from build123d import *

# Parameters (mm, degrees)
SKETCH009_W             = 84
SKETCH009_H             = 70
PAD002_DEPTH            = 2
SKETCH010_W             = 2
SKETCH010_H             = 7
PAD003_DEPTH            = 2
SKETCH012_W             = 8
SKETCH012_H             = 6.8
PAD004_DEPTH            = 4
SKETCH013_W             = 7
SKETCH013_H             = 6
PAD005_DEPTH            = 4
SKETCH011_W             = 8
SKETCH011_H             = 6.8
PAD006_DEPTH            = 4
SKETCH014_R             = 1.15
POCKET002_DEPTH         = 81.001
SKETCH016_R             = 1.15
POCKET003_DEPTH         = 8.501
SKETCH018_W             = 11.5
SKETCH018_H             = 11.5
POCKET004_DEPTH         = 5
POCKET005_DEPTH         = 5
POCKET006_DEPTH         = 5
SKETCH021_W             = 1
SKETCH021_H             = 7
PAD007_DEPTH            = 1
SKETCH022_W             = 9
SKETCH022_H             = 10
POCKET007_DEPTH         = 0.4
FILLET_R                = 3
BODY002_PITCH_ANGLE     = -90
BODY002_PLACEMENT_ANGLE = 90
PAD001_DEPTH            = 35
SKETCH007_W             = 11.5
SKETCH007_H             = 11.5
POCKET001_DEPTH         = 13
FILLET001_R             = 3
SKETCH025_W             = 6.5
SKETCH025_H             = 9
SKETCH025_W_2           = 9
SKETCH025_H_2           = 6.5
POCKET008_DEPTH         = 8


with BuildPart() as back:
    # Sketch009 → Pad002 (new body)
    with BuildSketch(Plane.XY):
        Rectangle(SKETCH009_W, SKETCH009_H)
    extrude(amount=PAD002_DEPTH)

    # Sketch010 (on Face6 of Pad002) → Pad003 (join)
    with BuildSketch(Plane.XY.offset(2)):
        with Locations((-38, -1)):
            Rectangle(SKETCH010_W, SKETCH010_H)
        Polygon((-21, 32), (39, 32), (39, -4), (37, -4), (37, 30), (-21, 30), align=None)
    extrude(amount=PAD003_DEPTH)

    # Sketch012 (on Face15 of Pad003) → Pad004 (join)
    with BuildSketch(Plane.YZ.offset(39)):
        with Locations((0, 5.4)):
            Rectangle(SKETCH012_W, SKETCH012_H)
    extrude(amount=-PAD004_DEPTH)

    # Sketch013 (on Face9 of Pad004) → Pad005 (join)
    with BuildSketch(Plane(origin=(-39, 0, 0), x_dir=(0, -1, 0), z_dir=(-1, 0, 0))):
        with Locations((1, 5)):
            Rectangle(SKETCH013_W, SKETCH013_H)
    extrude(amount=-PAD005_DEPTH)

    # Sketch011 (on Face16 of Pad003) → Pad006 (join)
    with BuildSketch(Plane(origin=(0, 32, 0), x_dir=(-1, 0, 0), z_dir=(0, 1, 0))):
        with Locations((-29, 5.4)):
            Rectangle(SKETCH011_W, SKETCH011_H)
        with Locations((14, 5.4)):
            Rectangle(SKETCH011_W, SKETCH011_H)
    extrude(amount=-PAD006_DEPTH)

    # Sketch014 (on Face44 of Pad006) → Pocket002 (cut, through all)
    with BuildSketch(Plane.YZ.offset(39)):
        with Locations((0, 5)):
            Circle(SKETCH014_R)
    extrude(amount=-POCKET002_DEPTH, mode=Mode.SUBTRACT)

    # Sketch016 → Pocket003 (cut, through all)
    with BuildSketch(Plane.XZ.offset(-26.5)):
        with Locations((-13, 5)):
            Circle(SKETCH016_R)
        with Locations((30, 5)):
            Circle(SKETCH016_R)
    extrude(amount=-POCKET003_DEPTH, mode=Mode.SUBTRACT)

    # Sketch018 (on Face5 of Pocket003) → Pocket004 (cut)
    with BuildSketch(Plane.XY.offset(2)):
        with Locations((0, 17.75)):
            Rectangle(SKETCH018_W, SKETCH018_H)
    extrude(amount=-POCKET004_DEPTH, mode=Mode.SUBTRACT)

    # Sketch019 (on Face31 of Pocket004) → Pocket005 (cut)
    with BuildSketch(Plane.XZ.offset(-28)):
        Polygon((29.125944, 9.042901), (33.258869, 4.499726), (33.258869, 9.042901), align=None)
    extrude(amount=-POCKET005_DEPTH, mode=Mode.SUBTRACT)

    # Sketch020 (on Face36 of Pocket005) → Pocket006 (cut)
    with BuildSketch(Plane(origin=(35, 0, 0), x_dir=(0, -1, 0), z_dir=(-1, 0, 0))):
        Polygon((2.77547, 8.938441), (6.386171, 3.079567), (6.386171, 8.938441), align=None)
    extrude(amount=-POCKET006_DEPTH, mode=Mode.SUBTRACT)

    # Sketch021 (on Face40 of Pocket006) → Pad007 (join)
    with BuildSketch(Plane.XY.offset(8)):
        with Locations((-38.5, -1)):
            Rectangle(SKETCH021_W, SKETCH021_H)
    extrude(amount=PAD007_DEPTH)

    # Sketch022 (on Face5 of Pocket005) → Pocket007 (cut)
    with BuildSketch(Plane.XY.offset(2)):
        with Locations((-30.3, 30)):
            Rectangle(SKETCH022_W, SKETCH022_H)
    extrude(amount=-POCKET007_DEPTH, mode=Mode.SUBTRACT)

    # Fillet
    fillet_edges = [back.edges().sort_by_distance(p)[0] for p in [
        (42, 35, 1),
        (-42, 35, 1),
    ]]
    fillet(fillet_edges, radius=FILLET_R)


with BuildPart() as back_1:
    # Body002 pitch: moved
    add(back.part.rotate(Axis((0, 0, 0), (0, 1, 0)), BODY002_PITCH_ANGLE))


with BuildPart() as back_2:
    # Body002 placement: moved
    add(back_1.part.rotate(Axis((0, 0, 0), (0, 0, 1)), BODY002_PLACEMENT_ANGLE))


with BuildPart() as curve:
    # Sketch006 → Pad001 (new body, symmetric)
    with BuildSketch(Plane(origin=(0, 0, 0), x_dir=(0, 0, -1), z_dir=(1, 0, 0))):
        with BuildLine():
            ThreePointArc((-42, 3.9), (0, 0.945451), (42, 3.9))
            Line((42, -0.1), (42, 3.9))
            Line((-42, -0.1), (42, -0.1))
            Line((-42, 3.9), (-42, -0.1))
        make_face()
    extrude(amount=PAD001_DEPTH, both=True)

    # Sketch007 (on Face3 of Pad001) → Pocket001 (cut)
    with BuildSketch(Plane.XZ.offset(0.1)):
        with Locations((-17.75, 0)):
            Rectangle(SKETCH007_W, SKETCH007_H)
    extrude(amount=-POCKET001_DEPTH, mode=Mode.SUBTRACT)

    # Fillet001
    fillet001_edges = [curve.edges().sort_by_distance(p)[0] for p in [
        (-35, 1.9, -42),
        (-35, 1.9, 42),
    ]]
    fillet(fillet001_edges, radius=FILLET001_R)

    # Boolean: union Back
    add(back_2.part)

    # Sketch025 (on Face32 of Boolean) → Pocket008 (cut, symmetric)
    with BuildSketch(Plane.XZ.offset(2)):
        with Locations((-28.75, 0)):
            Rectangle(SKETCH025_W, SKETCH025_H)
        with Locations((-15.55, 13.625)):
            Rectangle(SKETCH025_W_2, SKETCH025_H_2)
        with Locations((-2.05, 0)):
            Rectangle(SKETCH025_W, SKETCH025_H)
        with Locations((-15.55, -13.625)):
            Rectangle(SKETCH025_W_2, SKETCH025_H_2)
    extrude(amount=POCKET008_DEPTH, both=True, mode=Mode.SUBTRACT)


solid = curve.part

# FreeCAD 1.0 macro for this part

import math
import FreeCAD as App
import Part
import Sketcher

V = App.Vector


def edges_at(feature, points):
    """Names of the edges that pass closest to the given points."""
    edges = feature.Shape.Edges
    near = lambda p: min(range(len(edges)), key=lambda i: edges[i].distToShape(Part.Vertex(*p))[0])
    return sorted({f"Edge{near(p) + 1}" for p in points})


def add_polygon(sketch, points):
    """Adds a closed chain of lines whose ends are joined by coincident constraints."""
    first, n = sketch.GeometryCount, len(points)
    for a, b in zip(points, points[1:] + points[:1]):
        sketch.addGeometry(Part.LineSegment(App.Vector(*a, 0), App.Vector(*b, 0)), False)
    for i in range(n):
        sketch.addConstraint(Sketcher.Constraint("Coincident", first + i, 2, first + (i + 1) % n, 1))

doc = App.newDocument("Part")
body = doc.addObject("PartDesign::Body", "Body")

# Sketch on XY plane
sketch1 = body.newObject("Sketcher::SketchObject", "Sketch")
sketch1.AttachmentSupport = (doc.getObject("XY_Plane"), [""])
sketch1.MapMode = "FlatFace"
add_polygon(sketch1, [(-42, 35), (-42, -35), (42, -35), (42, 35)])  # lines 0-3
sketch1.addConstraint([
    Sketcher.Constraint("Vertical", 0),
    Sketcher.Constraint("Horizontal", 1),
    Sketcher.Constraint("Vertical", 2),
    Sketcher.Constraint("Horizontal", 3),
    Sketcher.Constraint("Symmetric", 0, 2, 2, 2, -1, 1),
    Sketcher.Constraint("DistanceX", 1, 1, 1, 2, 84.0),
    Sketcher.Constraint("DistanceY", 0, 2, 0, 1, 70.0),
])
pad1 = body.newObject("PartDesign::Pad", "Pad")
pad1.Profile = sketch1
pad1.Length = 2

# Sketch on XY plane
sketch2 = body.newObject("Sketcher::SketchObject", "Sketch001")
sketch2.AttachmentSupport = (doc.getObject("XY_Plane"), [""])
sketch2.MapMode = "FlatFace"
sketch2.AttachmentOffset = App.Placement(V(0, 0, 2), App.Rotation())
add_polygon(sketch2, [(-39, 2.5), (-39, -4.5), (-37, -4.5), (-37, 2.5)])  # lines 0-3
add_polygon(sketch2, [(39, 32), (-21, 32), (-21, 30), (37, 30), (37, -4), (39, -4)])  # lines 4-9
sketch2.addConstraint([
    Sketcher.Constraint("Vertical", 0),
    Sketcher.Constraint("Horizontal", 1),
    Sketcher.Constraint("Vertical", 2),
    Sketcher.Constraint("Horizontal", 3),
    Sketcher.Constraint("Horizontal", 4),
    Sketcher.Constraint("Vertical", 5),
    Sketcher.Constraint("Horizontal", 6),
    Sketcher.Constraint("Vertical", 7),
    Sketcher.Constraint("Horizontal", 8),
    Sketcher.Constraint("Vertical", 9),
    Sketcher.Constraint("Equal", 3, 8),
    Sketcher.Constraint("Equal", 8, 5),
    Sketcher.Constraint("DistanceX", 1, 1, 1, 2, 2.0),
    Sketcher.Constraint("DistanceX", 4, 2, 4, 1, 60.0),
    Sketcher.Constraint("DistanceY", 0, 2, 0, 1, 7.0),
    Sketcher.Constraint("DistanceY", 7, 2, 7, 1, 34.0),
    Sketcher.Constraint("DistanceX", 0, 2, -1, 1, 39.0),
    Sketcher.Constraint("DistanceX", 4, 2, -1, 1, 21.0),
    Sketcher.Constraint("DistanceY", -1, 1, 4, 2, 32.0),
    Sketcher.Constraint("DistanceY", 0, 2, -1, 1, 4.5),
])
pad2 = body.newObject("PartDesign::Pad", "Pad001")
pad2.Profile = sketch2
pad2.Length = 2

# Sketch on YZ plane
sketch3 = body.newObject("Sketcher::SketchObject", "Sketch002")
sketch3.AttachmentSupport = (doc.getObject("YZ_Plane"), [""])
sketch3.MapMode = "FlatFace"
sketch3.AttachmentOffset = App.Placement(V(0, 0, 39), App.Rotation())
add_polygon(sketch3, [(-4, 8.8), (-4, 2), (4, 2), (4, 8.8)])  # lines 0-3
sketch3.addConstraint([
    Sketcher.Constraint("Vertical", 0),
    Sketcher.Constraint("Horizontal", 1),
    Sketcher.Constraint("Vertical", 2),
    Sketcher.Constraint("Horizontal", 3),
    Sketcher.Constraint("DistanceX", 1, 1, 1, 2, 8.0),
    Sketcher.Constraint("DistanceY", 0, 2, 0, 1, 6.8),
    Sketcher.Constraint("DistanceX", 0, 2, -1, 1, 4.0),
    Sketcher.Constraint("DistanceY", -1, 1, 0, 2, 2.0),
])
pad3 = body.newObject("PartDesign::Pad", "Pad002")
pad3.Profile = sketch3
pad3.Length = 4
pad3.Reversed = True

# Sketch on YZ plane
sketch4 = body.newObject("Sketcher::SketchObject", "Sketch003")
sketch4.AttachmentSupport = (doc.getObject("YZ_Plane"), [""])
sketch4.MapMode = "FlatFace"
sketch4.AttachmentOffset = App.Placement(V(0, 0, -39), App.Rotation())
add_polygon(sketch4, [(2.5, 8), (2.5, 2), (-4.5, 2), (-4.5, 8)])  # lines 0-3
sketch4.addConstraint([
    Sketcher.Constraint("Vertical", 0),
    Sketcher.Constraint("Horizontal", 1),
    Sketcher.Constraint("Vertical", 2),
    Sketcher.Constraint("Horizontal", 3),
    Sketcher.Constraint("DistanceX", 1, 2, 1, 1, 7.0),
    Sketcher.Constraint("DistanceY", 0, 2, 0, 1, 6.0),
    Sketcher.Constraint("DistanceY", -1, 1, 0, 2, 2.0),
    Sketcher.Constraint("DistanceX", -1, 1, 0, 2, 2.5),
])
pad4 = body.newObject("PartDesign::Pad", "Pad003")
pad4.Profile = sketch4
pad4.Length = 4

# Sketch on XZ plane
sketch5 = body.newObject("Sketcher::SketchObject", "Sketch004")
sketch5.AttachmentSupport = (doc.getObject("XZ_Plane"), [""])
sketch5.MapMode = "FlatFace"
sketch5.AttachmentOffset = App.Placement(V(0, 0, -32), App.Rotation())
add_polygon(sketch5, [(33, 8.8), (33, 2), (25, 2), (25, 8.8)])  # lines 0-3
add_polygon(sketch5, [(-10, 8.8), (-10, 2), (-18, 2), (-18, 8.8)])  # lines 4-7
sketch5.addConstraint([
    Sketcher.Constraint("Vertical", 0),
    Sketcher.Constraint("Horizontal", 1),
    Sketcher.Constraint("Vertical", 2),
    Sketcher.Constraint("Horizontal", 3),
    Sketcher.Constraint("Vertical", 4),
    Sketcher.Constraint("Horizontal", 5),
    Sketcher.Constraint("Vertical", 6),
    Sketcher.Constraint("Horizontal", 7),
    Sketcher.Constraint("Horizontal", 1, 2, 4, 2),
    Sketcher.Constraint("Horizontal", 3, 2, 6, 2),
    Sketcher.Constraint("Equal", 3, 5),
    Sketcher.Constraint("DistanceX", 1, 2, 1, 1, 8.0),
    Sketcher.Constraint("DistanceY", 0, 2, 0, 1, 6.8),
    Sketcher.Constraint("DistanceX", -1, 1, 0, 2, 33.0),
    Sketcher.Constraint("DistanceY", -1, 1, 0, 2, 2.0),
    Sketcher.Constraint("DistanceX", 4, 2, -1, 1, 10.0),
])
pad5 = body.newObject("PartDesign::Pad", "Pad004")
pad5.Profile = sketch5
pad5.Length = 4

# Sketch on YZ plane
sketch6 = body.newObject("Sketcher::SketchObject", "Sketch005")
sketch6.AttachmentSupport = (doc.getObject("YZ_Plane"), [""])
sketch6.MapMode = "FlatFace"
sketch6.AttachmentOffset = App.Placement(V(0, 0, 39), App.Rotation())
sketch6.addGeometry(Part.Circle(V(0, 5, 0), V(0, 0, 1), 1.15), False)
sketch6.addConstraint([
    Sketcher.Constraint("PointOnObject", 0, 3, -2),
    Sketcher.Constraint("Diameter", 0, 2.3),
    Sketcher.Constraint("DistanceY", -1, 1, 0, 3, 5.0),
])
pocket1 = body.newObject("PartDesign::Pocket", "Pocket")
pocket1.Profile = sketch6
pocket1.Type = "ThroughAll"

# Sketch on XZ plane
sketch7 = body.newObject("Sketcher::SketchObject", "Sketch006")
sketch7.AttachmentSupport = (doc.getObject("XZ_Plane"), [""])
sketch7.MapMode = "FlatFace"
sketch7.AttachmentOffset = App.Placement(V(0, 0, -26.5), App.Rotation())
sketch7.addGeometry([
    Part.Circle(V(-13, 5, 0), V(0, 0, 1), 1.15),
    Part.Circle(V(30, 5, 0), V(0, 0, 1), 1.15),
], False)
sketch7.addConstraint([
    Sketcher.Constraint("Equal", 0, 1),
    Sketcher.Constraint("Horizontal", 0, 3, 1, 3),
    Sketcher.Constraint("Diameter", 0, 2.3),
    Sketcher.Constraint("DistanceX", 0, 3, -1, 1, 13.0),
    Sketcher.Constraint("DistanceY", -1, 1, 0, 3, 5.0),
    Sketcher.Constraint("DistanceX", -1, 1, 1, 3, 30.0),
])
pocket2 = body.newObject("PartDesign::Pocket", "Pocket001")
pocket2.Profile = sketch7
pocket2.Type = "ThroughAll"

# Sketch on XY plane
sketch8 = body.newObject("Sketcher::SketchObject", "Sketch007")
sketch8.AttachmentSupport = (doc.getObject("XY_Plane"), [""])
sketch8.MapMode = "FlatFace"
sketch8.AttachmentOffset = App.Placement(V(0, 0, 2), App.Rotation())
add_polygon(sketch8, [(-5.75, 23.5), (-5.75, 12), (5.75, 12), (5.75, 23.5)])  # lines 0-3
sketch8.addConstraint([
    Sketcher.Constraint("Vertical", 0),
    Sketcher.Constraint("Horizontal", 1),
    Sketcher.Constraint("Vertical", 2),
    Sketcher.Constraint("Horizontal", 3),
    Sketcher.Constraint("Equal", 3, 0),
    Sketcher.Constraint("DistanceX", 1, 1, 1, 2, 11.5),
    Sketcher.Constraint("DistanceY", -1, 1, 0, 2, 12.0),
    Sketcher.Constraint("DistanceX", 0, 2, -1, 1, 5.75),
])
pocket3 = body.newObject("PartDesign::Pocket", "Pocket002")
pocket3.Profile = sketch8
pocket3.Length = 5

# Sketch on XZ plane
sketch9 = body.newObject("Sketcher::SketchObject", "Sketch008")
sketch9.AttachmentSupport = (doc.getObject("XZ_Plane"), [""])
sketch9.MapMode = "FlatFace"
sketch9.AttachmentOffset = App.Placement(V(0, 0, -28), App.Rotation())
add_polygon(sketch9, [(29.125944, 9.042901), (33.258869, 4.499726), (33.258869, 9.042901)])  # lines 0-2
sketch9.addConstraint([
    Sketcher.Constraint("Vertical", 1),
    Sketcher.Constraint("Horizontal", 2),
    Sketcher.Constraint("DistanceY", -1, 1, 1, 2, 9.042901),
    Sketcher.Constraint("DistanceX", 2, 2, 2, 1, 4.132925),
    Sketcher.Constraint("DistanceY", 1, 1, 1, 2, 4.543175),
    Sketcher.Constraint("DistanceX", -1, 1, 0, 2, 33.258869),
])
pocket4 = body.newObject("PartDesign::Pocket", "Pocket003")
pocket4.Profile = sketch9
pocket4.Length = 5

# Sketch on YZ plane
sketch10 = body.newObject("Sketcher::SketchObject", "Sketch009")
sketch10.AttachmentSupport = (doc.getObject("YZ_Plane"), [""])
sketch10.MapMode = "FlatFace"
sketch10.AttachmentOffset = App.Placement(V(0, 0, 35), App.Rotation())
add_polygon(sketch10, [(-2.77547, 8.938441), (-6.386171, 3.079567), (-6.386171, 8.938441)])  # lines 0-2
sketch10.addConstraint([
    Sketcher.Constraint("Vertical", 1),
    Sketcher.Constraint("Horizontal", 2),
    Sketcher.Constraint("DistanceX", 2, 1, 2, 2, 3.610701),
    Sketcher.Constraint("Distance", 0, 6.882119),
    Sketcher.Constraint("DistanceX", 0, 2, -1, 1, 6.386171),
    Sketcher.Constraint("DistanceY", -1, 1, 1, 2, 8.938441),
])
pocket5 = body.newObject("PartDesign::Pocket", "Pocket004")
pocket5.Profile = sketch10
pocket5.Length = 5
pocket5.Reversed = True

# Sketch on XY plane
sketch11 = body.newObject("Sketcher::SketchObject", "Sketch010")
sketch11.AttachmentSupport = (doc.getObject("XY_Plane"), [""])
sketch11.MapMode = "FlatFace"
sketch11.AttachmentOffset = App.Placement(V(0, 0, 8), App.Rotation())
add_polygon(sketch11, [(-39, 2.5), (-39, -4.5), (-38, -4.5), (-38, 2.5)])  # lines 0-3
sketch11.addConstraint([
    Sketcher.Constraint("Vertical", 0),
    Sketcher.Constraint("Horizontal", 1),
    Sketcher.Constraint("Vertical", 2),
    Sketcher.Constraint("Horizontal", 3),
    Sketcher.Constraint("DistanceX", 1, 1, 1, 2, 1.0),
    Sketcher.Constraint("DistanceY", 0, 2, 0, 1, 7.0),
    Sketcher.Constraint("DistanceX", 0, 2, -1, 1, 39.0),
    Sketcher.Constraint("DistanceY", 0, 2, -1, 1, 4.5),
])
pad6 = body.newObject("PartDesign::Pad", "Pad005")
pad6.Profile = sketch11
pad6.Length = 1

# Sketch on XY plane
sketch12 = body.newObject("Sketcher::SketchObject", "Sketch011")
sketch12.AttachmentSupport = (doc.getObject("XY_Plane"), [""])
sketch12.MapMode = "FlatFace"
sketch12.AttachmentOffset = App.Placement(V(0, 0, 2), App.Rotation())
add_polygon(sketch12, [(-34.8, 35), (-34.8, 25), (-25.8, 25), (-25.8, 35)])  # lines 0-3
sketch12.addConstraint([
    Sketcher.Constraint("Vertical", 0),
    Sketcher.Constraint("Horizontal", 1),
    Sketcher.Constraint("Vertical", 2),
    Sketcher.Constraint("Horizontal", 3),
    Sketcher.Constraint("DistanceX", 1, 1, 1, 2, 9.0),
    Sketcher.Constraint("DistanceY", 0, 2, 0, 1, 10.0),
    Sketcher.Constraint("DistanceY", -1, 1, 0, 2, 25.0),
    Sketcher.Constraint("DistanceX", 0, 2, -1, 1, 34.8),
])
pocket6 = body.newObject("PartDesign::Pocket", "Pocket005")
pocket6.Profile = sketch12
pocket6.Length = 0.4
doc.recompute()

fillet = body.newObject("PartDesign::Fillet", "Fillet")
fillet.Base = (pocket6, edges_at(pocket6, [(42, 35, 1), (-42, 35, 1)]))
fillet.Radius = 3
body2 = doc.addObject("PartDesign::Body", "Body001")
doc.recompute()

body.Placement = App.Placement(V(0, 0, 0), App.Rotation(V(0, 1, 0), 270))
boolean = body2.newObject("PartDesign::Boolean", "Boolean")
boolean.Type = "Fuse"
boolean.addObjects([body])
body3 = doc.addObject("PartDesign::Body", "Body002")
doc.recompute()

body2.Placement = App.Placement(V(0, 0, 0), App.Rotation(V(0, 0, 1), 90))
boolean2 = body3.newObject("PartDesign::Boolean", "Boolean001")
boolean2.Type = "Fuse"
boolean2.addObjects([body2])
body4 = doc.addObject("PartDesign::Body", "Body003")

# Sketch on YZ plane
sketch13 = body4.newObject("Sketcher::SketchObject", "Sketch012")
sketch13.AttachmentSupport = (doc.getObject("YZ_Plane003"), [""])
sketch13.MapMode = "FlatFace"
sketch13.addGeometry([
    Part.ArcOfCircle(Part.Circle(V(300.945444, 0, 0), V(0, 0, 1), 299.999993), math.radians(171.952154), math.radians(188.047846)),
    Part.LineSegment(V(3.9, 42, 0), V(-0.1, 42, 0)),
    Part.LineSegment(V(-0.1, 42, 0), V(-0.1, -42, 0)),
    Part.LineSegment(V(-0.1, -42, 0), V(3.9, -42, 0)),
], False)
sketch13.addConstraint([
    Sketcher.Constraint("Coincident", 0, 1, 1, 1),
    Sketcher.Constraint("Coincident", 1, 2, 2, 1),
    Sketcher.Constraint("Coincident", 2, 2, 3, 1),
    Sketcher.Constraint("Coincident", 3, 2, 0, 2),
    Sketcher.Constraint("Horizontal", 1),
    Sketcher.Constraint("Vertical", 2),
    Sketcher.Constraint("Horizontal", 3),
    Sketcher.Constraint("Symmetric", 0, 1, 3, 2, -1),
    Sketcher.Constraint("DistanceX", 1, 2, 1, 1, 4.0),
    Sketcher.Constraint("DistanceY", 2, 2, 2, 1, 84.0),
    Sketcher.Constraint("DistanceX", -1, 1, 0, 1, 3.9),
    Sketcher.Constraint("Radius", 0, 299.999993),
])
pad7 = body4.newObject("PartDesign::Pad", "Pad006")
pad7.Profile = sketch13
pad7.Length = 70
pad7.Midplane = True

# Sketch on XZ plane
sketch14 = body4.newObject("Sketcher::SketchObject", "Sketch013")
sketch14.AttachmentSupport = (doc.getObject("XZ_Plane003"), [""])
sketch14.MapMode = "FlatFace"
sketch14.AttachmentOffset = App.Placement(V(0, 0, 0.1), App.Rotation())
add_polygon(sketch14, [(-23.5, 5.75), (-23.5, -5.75), (-12, -5.75), (-12, 5.75)])  # lines 0-3
sketch14.addConstraint([
    Sketcher.Constraint("Vertical", 0),
    Sketcher.Constraint("Horizontal", 1),
    Sketcher.Constraint("Vertical", 2),
    Sketcher.Constraint("Horizontal", 3),
    Sketcher.Constraint("Equal", 3, 0),
    Sketcher.Constraint("DistanceX", 1, 1, 1, 2, 11.5),
    Sketcher.Constraint("DistanceX", 1, 2, -1, 1, 12.0),
    Sketcher.Constraint("DistanceY", 0, 2, -1, 1, 5.75),
])
pocket7 = body4.newObject("PartDesign::Pocket", "Pocket006")
pocket7.Profile = sketch14
pocket7.Length = 13
doc.recompute()

fillet2 = body4.newObject("PartDesign::Fillet", "Fillet001")
fillet2.Base = (pocket7, edges_at(pocket7, [(-35, 1.9, -42), (-35, 1.9, 42)]))
fillet2.Radius = 3
doc.recompute()

boolean3 = body4.newObject("PartDesign::Boolean", "Boolean002")
boolean3.Type = "Fuse"
boolean3.addObjects([body3])

# Sketch on XZ plane
sketch15 = body4.newObject("Sketcher::SketchObject", "Sketch014")
sketch15.AttachmentSupport = (doc.getObject("XZ_Plane003"), [""])
sketch15.MapMode = "FlatFace"
sketch15.AttachmentOffset = App.Placement(V(0, 0, 2), App.Rotation())
add_polygon(sketch15, [(-32, 4.5), (-32, -4.5), (-25.5, -4.5), (-25.5, 4.5)])  # lines 0-3
add_polygon(sketch15, [(-20.05, 16.875), (-20.05, 10.375), (-11.05, 10.375), (-11.05, 16.875)])  # lines 4-7
add_polygon(sketch15, [(-5.3, 4.5), (-5.3, -4.5), (1.2, -4.5), (1.2, 4.5)])  # lines 8-11
add_polygon(sketch15, [(-20.05, -10.375), (-20.05, -16.875), (-11.05, -16.875), (-11.05, -10.375)])  # lines 12-15
sketch15.addConstraint([
    Sketcher.Constraint("Vertical", 0),
    Sketcher.Constraint("Horizontal", 1),
    Sketcher.Constraint("Vertical", 2),
    Sketcher.Constraint("Horizontal", 3),
    Sketcher.Constraint("Vertical", 4),
    Sketcher.Constraint("Horizontal", 5),
    Sketcher.Constraint("Vertical", 6),
    Sketcher.Constraint("Horizontal", 7),
    Sketcher.Constraint("Vertical", 8),
    Sketcher.Constraint("Horizontal", 9),
    Sketcher.Constraint("Vertical", 10),
    Sketcher.Constraint("Horizontal", 11),
    Sketcher.Constraint("Vertical", 12),
    Sketcher.Constraint("Horizontal", 13),
    Sketcher.Constraint("Vertical", 14),
    Sketcher.Constraint("Horizontal", 15),
    Sketcher.Constraint("Symmetric", 7, 2, 12, 2, -1),
    Sketcher.Constraint("Symmetric", 5, 2, 14, 2, -1),
    Sketcher.Constraint("Horizontal", 1, 2, 8, 2),
    Sketcher.Constraint("Horizontal", 3, 2, 10, 2),
    Sketcher.Constraint("Equal", 3, 9),
    Sketcher.Constraint("Equal", 15, 0),
    Sketcher.Constraint("Equal", 11, 4),
    Sketcher.Constraint("DistanceX", 5, 1, 5, 2, 9.0),
    Sketcher.Constraint("DistanceX", 1, 1, 1, 2, 6.5),
    Sketcher.Constraint("DistanceX", 0, 2, -1, 1, 32.0),
    Sketcher.Constraint("DistanceY", 0, 2, -1, 1, 4.5),
    Sketcher.Constraint("DistanceX", 8, 2, -1, 1, 5.3),
    Sketcher.Constraint("DistanceX", 4, 2, -1, 1, 20.05),
    Sketcher.Constraint("DistanceY", -1, 1, 4, 2, 10.375),
])
pocket8 = body4.newObject("PartDesign::Pocket", "Pocket007")
pocket8.Profile = sketch15
pocket8.Length = 16
pocket8.Midplane = True

doc.recompute()
